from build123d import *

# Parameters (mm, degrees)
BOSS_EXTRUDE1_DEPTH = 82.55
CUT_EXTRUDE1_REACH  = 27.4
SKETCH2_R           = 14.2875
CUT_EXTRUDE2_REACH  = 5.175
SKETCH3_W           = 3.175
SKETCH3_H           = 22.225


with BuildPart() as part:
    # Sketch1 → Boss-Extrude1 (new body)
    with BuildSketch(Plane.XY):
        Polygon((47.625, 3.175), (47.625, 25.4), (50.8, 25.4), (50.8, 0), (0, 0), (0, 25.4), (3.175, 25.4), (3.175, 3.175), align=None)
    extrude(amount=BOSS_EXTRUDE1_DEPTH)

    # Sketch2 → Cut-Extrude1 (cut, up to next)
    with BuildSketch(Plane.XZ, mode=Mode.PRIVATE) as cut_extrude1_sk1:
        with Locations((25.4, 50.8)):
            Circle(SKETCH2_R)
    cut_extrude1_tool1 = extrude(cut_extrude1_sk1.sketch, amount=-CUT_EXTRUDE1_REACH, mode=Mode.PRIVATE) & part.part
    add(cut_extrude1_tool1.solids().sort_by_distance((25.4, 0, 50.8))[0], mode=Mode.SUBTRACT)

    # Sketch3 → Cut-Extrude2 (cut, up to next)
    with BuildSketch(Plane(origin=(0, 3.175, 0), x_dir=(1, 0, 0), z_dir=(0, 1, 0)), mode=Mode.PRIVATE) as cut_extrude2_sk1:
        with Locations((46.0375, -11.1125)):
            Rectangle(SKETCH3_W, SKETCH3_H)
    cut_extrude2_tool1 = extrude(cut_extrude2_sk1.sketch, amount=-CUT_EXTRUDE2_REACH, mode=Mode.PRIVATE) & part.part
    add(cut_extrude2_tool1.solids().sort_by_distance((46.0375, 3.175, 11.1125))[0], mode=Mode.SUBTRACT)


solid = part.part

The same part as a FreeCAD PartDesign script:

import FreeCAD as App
import Part
import Sketcher
Q = App.Units.Quantity

doc = App.newDocument("Part")
params = doc.addObject("Spreadsheet::Sheet", "Params")
for row, (alias, value) in enumerate([
    ("sketch1_width", "2 in"),
    ("sketch1_height", "1 in"),
    ("sketch1_width2", "1.75 in"),
    ("sketch1_height2", "0.875 in"),
    ("pad1_length", "3.25 in"),
    ("sketch2_diameter", "1.125 in"),
    ("sketch3_width", "0.125 in"),
    ("sketch3_height", "0.875 in"),
], start=1):
    params.set(f"A{row}", alias)
    params.set(f"B{row}", "=" + value)
    params.setAlias(f"B{row}", alias)

body = doc.addObject("PartDesign::Body", "Body")

# Sketch on XY plane
sketch1 = doc.addObject("Sketcher::SketchObject", "Sketch")
body.addObject(sketch1)
sketch1.AttachmentSupport = (doc.XY_Plane, [""])
sketch1.MapMode = "FlatFace"
sketch1.addGeometry(Part.LineSegment(App.Vector(47.6, 25.4, 0), App.Vector(47.6, 3.2, 0)), False)
sketch1.addGeometry(Part.LineSegment(App.Vector(47.6, 3.2, 0), App.Vector(3.2, 3.2, 0)), False)
sketch1.addGeometry(Part.LineSegment(App.Vector(3.2, 3.2, 0), App.Vector(3.2, 25.4, 0)), False)
sketch1.addGeometry(Part.LineSegment(App.Vector(3.2, 25.4, 0), App.Vector(0, 25.4, 0)), False)
sketch1.addGeometry(Part.LineSegment(App.Vector(0, 25.4, 0), App.Vector(0, 0, 0)), False)
sketch1.addGeometry(Part.LineSegment(App.Vector(0, 0, 0), App.Vector(50.8, 0, 0)), False)
sketch1.addGeometry(Part.LineSegment(App.Vector(50.8, 0, 0), App.Vector(50.8, 25.4, 0)), False)
sketch1.addGeometry(Part.LineSegment(App.Vector(50.8, 25.4, 0), App.Vector(47.6, 25.4, 0)), False)
sketch1.addConstraint(Sketcher.Constraint("Coincident", 0, 2, 1, 1))
sketch1.addConstraint(Sketcher.Constraint("Coincident", 1, 2, 2, 1))
sketch1.addConstraint(Sketcher.Constraint("Coincident", 2, 2, 3, 1))
sketch1.addConstraint(Sketcher.Constraint("Coincident", 3, 2, 4, 1))
sketch1.addConstraint(Sketcher.Constraint("Coincident", 4, 2, 5, 1))
sketch1.addConstraint(Sketcher.Constraint("Coincident", 5, 2, 6, 1))
sketch1.addConstraint(Sketcher.Constraint("Coincident", 6, 2, 7, 1))
sketch1.addConstraint(Sketcher.Constraint("Coincident", 7, 2, 0, 1))
sketch1.addConstraint(Sketcher.Constraint("Vertical", 0))
sketch1.addConstraint(Sketcher.Constraint("Horizontal", 1))
sketch1.addConstraint(Sketcher.Constraint("Vertical", 2))
sketch1.addConstraint(Sketcher.Constraint("Horizontal", 3))
sketch1.addConstraint(Sketcher.Constraint("Vertical", 4))
sketch1.addConstraint(Sketcher.Constraint("Horizontal", 5))
sketch1.addConstraint(Sketcher.Constraint("Vertical", 6))
sketch1.addConstraint(Sketcher.Constraint("Horizontal", 7))
sketch1.addConstraint(Sketcher.Constraint("Coincident", 4, 2, -1, 1))
sketch1.addConstraint(Sketcher.Constraint("Horizontal", 3, 2, 6, 2))
sketch1.addConstraint(Sketcher.Constraint("Equal", 3, 7))
sketch1.addConstraint(Sketcher.Constraint("DistanceX", 5, 1, 5, 2, Q("2 in")))
sketch1.addConstraint(Sketcher.Constraint("DistanceY", 4, 2, 4, 1, Q("1 in")))
sketch1.addConstraint(Sketcher.Constraint("DistanceX", 1, 2, 1, 1, Q("1.75 in")))
sketch1.addConstraint(Sketcher.Constraint("DistanceY", 0, 2, 0, 1, Q("0.875 in")))
sketch1.setExpression("Constraints[19]", "Params.sketch1_width")
sketch1.setExpression("Constraints[20]", "Params.sketch1_height")
sketch1.setExpression("Constraints[21]", "Params.sketch1_width2")
sketch1.setExpression("Constraints[22]", "Params.sketch1_height2")
pad1 = doc.addObject("PartDesign::Pad", "Pad")
body.addObject(pad1)
pad1.Profile = sketch1
pad1.setExpression("Length", "Params.pad1_length")

# Sketch on XZ plane
sketch2 = doc.addObject("Sketcher::SketchObject", "Sketch001")
body.addObject(sketch2)
sketch2.AttachmentSupport = (doc.XZ_Plane, [""])
sketch2.MapMode = "FlatFace"
sketch2.addGeometry(Part.Circle(App.Vector(25, 51, 0), App.Vector(0, 0, 1), 14), False)
sketch2.addConstraint(Sketcher.Constraint("Diameter", 0, Q("1.125 in")))
sketch2.addConstraint(Sketcher.Constraint("DistanceX", -1, 1, 0, 3, Q("1 in")))
sketch2.addConstraint(Sketcher.Constraint("DistanceY", -1, 1, 0, 3, Q("2 in")))
sketch2.setExpression("Constraints[0]", "Params.sketch2_diameter")
pocket1 = doc.addObject("PartDesign::Pocket", "Pocket")
body.addObject(pocket1)
pocket1.Profile = sketch2
pocket1.Type = "UpToFirst"

# Sketch on XZ plane
sketch3 = doc.addObject("Sketcher::SketchObject", "Sketch002")
body.addObject(sketch3)
sketch3.AttachmentSupport = (doc.XZ_Plane, [""])
sketch3.MapMode = "FlatFace"
sketch3.AttachmentOffset = App.Placement(App.Vector(0, 0, -0.125 * 25.4), App.Rotation())
sketch3.addGeometry(Part.LineSegment(App.Vector(44.5, 0, 0), App.Vector(44.5, 22.2, 0)), False)
sketch3.addGeometry(Part.LineSegment(App.Vector(44.5, 22.2, 0), App.Vector(47.6, 22.2, 0)), False)
sketch3.addGeometry(Part.LineSegment(App.Vector(47.6, 22.2, 0), App.Vector(47.6, 0, 0)), False)
sketch3.addGeometry(Part.LineSegment(App.Vector(47.6, 0, 0), App.Vector(44.5, 0, 0)), False)
sketch3.addConstraint(Sketcher.Constraint("Coincident", 0, 2, 1, 1))
sketch3.addConstraint(Sketcher.Constraint("Coincident", 1, 2, 2, 1))
sketch3.addConstraint(Sketcher.Constraint("Coincident", 2, 2, 3, 1))
sketch3.addConstraint(Sketcher.Constraint("Coincident", 3, 2, 0, 1))
sketch3.addConstraint(Sketcher.Constraint("Vertical", 0))
sketch3.addConstraint(Sketcher.Constraint("Horizontal", 1))
sketch3.addConstraint(Sketcher.Constraint("Vertical", 2))
sketch3.addConstraint(Sketcher.Constraint("Horizontal", 3))
sketch3.addConstraint(Sketcher.Constraint("PointOnObject", 2, 2, -1))
sketch3.addConstraint(Sketcher.Constraint("DistanceX", 1, 1, 1, 2, Q("0.125 in")))
sketch3.addConstraint(Sketcher.Constraint("DistanceY", 0, 1, 0, 2, Q("0.875 in")))
sketch3.addConstraint(Sketcher.Constraint("DistanceX", -1, 1, 0, 2, Q("1.75 in")))
sketch3.setExpression("Constraints[9]", "Params.sketch3_width")
sketch3.setExpression("Constraints[10]", "Params.sketch3_height")
pocket2 = doc.addObject("PartDesign::Pocket", "Pocket001")
body.addObject(pocket2)
pocket2.Profile = sketch3
pocket2.Type = "UpToFirst"
pocket2.Reversed = True

doc.recompute()
